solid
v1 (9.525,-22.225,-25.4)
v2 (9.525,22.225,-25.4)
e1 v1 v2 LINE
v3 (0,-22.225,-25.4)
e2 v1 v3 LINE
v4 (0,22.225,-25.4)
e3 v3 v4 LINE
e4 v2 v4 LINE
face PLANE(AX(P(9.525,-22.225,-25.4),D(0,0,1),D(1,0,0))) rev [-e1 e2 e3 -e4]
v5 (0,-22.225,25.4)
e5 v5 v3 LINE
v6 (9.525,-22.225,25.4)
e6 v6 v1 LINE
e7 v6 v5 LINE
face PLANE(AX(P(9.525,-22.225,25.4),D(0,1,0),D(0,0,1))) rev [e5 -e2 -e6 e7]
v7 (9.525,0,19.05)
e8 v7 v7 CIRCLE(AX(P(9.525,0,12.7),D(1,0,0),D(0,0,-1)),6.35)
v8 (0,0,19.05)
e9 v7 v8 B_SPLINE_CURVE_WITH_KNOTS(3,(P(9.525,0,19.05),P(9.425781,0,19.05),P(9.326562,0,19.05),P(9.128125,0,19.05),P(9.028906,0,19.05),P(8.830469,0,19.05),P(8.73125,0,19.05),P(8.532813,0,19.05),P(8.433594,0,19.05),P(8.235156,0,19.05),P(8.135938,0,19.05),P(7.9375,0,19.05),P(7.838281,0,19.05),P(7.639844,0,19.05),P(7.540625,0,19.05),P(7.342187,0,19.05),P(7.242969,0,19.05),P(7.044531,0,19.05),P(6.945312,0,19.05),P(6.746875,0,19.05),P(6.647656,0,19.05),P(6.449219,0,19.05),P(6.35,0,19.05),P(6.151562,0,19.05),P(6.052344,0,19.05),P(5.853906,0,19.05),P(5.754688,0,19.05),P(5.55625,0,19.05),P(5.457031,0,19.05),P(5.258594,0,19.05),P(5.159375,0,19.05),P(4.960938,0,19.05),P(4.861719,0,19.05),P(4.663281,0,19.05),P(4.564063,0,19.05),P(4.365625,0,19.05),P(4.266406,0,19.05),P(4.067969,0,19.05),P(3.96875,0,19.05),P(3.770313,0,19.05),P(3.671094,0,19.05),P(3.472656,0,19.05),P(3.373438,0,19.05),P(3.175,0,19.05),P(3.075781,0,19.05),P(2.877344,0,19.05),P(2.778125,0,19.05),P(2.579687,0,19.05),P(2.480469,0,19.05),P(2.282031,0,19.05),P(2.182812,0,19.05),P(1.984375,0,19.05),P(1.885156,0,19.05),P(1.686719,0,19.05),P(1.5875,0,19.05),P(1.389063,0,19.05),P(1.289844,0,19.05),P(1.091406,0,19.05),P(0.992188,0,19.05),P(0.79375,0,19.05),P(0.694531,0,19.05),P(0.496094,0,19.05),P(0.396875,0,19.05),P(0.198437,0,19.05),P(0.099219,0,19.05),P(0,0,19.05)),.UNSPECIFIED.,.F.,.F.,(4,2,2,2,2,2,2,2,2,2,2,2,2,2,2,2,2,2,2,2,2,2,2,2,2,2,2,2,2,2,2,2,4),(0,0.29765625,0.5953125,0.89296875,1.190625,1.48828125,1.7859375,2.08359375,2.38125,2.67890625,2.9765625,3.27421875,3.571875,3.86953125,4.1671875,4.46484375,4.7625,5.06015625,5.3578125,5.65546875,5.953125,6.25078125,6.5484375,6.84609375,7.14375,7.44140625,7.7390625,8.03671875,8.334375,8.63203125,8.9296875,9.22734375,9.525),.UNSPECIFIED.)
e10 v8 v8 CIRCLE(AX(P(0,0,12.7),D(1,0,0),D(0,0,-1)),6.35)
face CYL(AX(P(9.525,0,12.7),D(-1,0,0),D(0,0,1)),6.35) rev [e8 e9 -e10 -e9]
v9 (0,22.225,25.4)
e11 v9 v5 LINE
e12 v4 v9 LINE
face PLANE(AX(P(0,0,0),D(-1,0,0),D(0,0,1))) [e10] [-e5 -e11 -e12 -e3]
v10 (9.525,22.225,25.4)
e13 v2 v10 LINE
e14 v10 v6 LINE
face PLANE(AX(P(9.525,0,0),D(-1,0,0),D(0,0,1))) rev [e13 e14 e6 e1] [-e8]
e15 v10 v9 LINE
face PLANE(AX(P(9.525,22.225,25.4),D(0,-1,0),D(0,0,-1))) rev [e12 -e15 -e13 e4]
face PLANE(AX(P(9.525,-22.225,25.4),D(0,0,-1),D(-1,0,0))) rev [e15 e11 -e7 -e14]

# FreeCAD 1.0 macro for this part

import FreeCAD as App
import Part
import Sketcher
from FreeCAD import Vector
Q = App.Units.Quantity


def add_polygon(sketch, points):
    """Adds a closed chain of lines whose ends are joined by coincident constraints."""
    first, n = sketch.GeometryCount, len(points)
    for a, b in zip(points, points[1:] + points[:1]):
        sketch.addGeometry(Part.LineSegment(App.Vector(*a, 0), App.Vector(*b, 0)), False)
    for i in range(n):
        sketch.addConstraint(Sketcher.Constraint("Coincident", first + i, 2, first + (i + 1) % n, 1))

doc = App.newDocument("Part")
body = doc.addObject("PartDesign::Body", "Body")

# Sketch on YZ plane
sketch1 = body.newObject("Sketcher::SketchObject", "Sketch")
sketch1.AttachmentSupport = (doc.getObject("YZ_Plane"), [""])
sketch1.MapMode = "FlatFace"
add_polygon(sketch1, [(22.225, 25.4), (-22.225, 25.4), (-22.225, -25.4), (22.225, -25.4)])  # lines 0-3
sketch1.addGeometry(Part.Circle(Vector(0, 12.7, 0), Vector(0, 0, 1), 6.35), False)  # 4
sketch1.addConstraint(Sketcher.Constraint("Horizontal", 0))
sketch1.addConstraint(Sketcher.Constraint("Vertical", 1))
sketch1.addConstraint(Sketcher.Constraint("Horizontal", 2))
sketch1.addConstraint(Sketcher.Constraint("Vertical", 3))
sketch1.addConstraint(Sketcher.Constraint("Symmetric", 0, 2, 2, 2, -1, 1))
sketch1.addConstraint(Sketcher.Constraint("PointOnObject", 4, 3, -2))
sketch1.addConstraint(Sketcher.Constraint("Diameter", 4, Q("0.5 in")))
sketch1.addConstraint(Sketcher.Constraint("DistanceY", 1, 2, 1, 1, Q("2 in")))
sketch1.addConstraint(Sketcher.Constraint("DistanceX", 0, 2, 0, 1, Q("1.75 in")))
sketch1.addConstraint(Sketcher.Constraint("DistanceY", -1, 1, 4, 3, Q("0.5 in")))
pad1 = body.newObject("PartDesign::Pad", "Pad")
pad1.Profile = sketch1
pad1.Length = Q("0.375 in")

doc.recompute()
